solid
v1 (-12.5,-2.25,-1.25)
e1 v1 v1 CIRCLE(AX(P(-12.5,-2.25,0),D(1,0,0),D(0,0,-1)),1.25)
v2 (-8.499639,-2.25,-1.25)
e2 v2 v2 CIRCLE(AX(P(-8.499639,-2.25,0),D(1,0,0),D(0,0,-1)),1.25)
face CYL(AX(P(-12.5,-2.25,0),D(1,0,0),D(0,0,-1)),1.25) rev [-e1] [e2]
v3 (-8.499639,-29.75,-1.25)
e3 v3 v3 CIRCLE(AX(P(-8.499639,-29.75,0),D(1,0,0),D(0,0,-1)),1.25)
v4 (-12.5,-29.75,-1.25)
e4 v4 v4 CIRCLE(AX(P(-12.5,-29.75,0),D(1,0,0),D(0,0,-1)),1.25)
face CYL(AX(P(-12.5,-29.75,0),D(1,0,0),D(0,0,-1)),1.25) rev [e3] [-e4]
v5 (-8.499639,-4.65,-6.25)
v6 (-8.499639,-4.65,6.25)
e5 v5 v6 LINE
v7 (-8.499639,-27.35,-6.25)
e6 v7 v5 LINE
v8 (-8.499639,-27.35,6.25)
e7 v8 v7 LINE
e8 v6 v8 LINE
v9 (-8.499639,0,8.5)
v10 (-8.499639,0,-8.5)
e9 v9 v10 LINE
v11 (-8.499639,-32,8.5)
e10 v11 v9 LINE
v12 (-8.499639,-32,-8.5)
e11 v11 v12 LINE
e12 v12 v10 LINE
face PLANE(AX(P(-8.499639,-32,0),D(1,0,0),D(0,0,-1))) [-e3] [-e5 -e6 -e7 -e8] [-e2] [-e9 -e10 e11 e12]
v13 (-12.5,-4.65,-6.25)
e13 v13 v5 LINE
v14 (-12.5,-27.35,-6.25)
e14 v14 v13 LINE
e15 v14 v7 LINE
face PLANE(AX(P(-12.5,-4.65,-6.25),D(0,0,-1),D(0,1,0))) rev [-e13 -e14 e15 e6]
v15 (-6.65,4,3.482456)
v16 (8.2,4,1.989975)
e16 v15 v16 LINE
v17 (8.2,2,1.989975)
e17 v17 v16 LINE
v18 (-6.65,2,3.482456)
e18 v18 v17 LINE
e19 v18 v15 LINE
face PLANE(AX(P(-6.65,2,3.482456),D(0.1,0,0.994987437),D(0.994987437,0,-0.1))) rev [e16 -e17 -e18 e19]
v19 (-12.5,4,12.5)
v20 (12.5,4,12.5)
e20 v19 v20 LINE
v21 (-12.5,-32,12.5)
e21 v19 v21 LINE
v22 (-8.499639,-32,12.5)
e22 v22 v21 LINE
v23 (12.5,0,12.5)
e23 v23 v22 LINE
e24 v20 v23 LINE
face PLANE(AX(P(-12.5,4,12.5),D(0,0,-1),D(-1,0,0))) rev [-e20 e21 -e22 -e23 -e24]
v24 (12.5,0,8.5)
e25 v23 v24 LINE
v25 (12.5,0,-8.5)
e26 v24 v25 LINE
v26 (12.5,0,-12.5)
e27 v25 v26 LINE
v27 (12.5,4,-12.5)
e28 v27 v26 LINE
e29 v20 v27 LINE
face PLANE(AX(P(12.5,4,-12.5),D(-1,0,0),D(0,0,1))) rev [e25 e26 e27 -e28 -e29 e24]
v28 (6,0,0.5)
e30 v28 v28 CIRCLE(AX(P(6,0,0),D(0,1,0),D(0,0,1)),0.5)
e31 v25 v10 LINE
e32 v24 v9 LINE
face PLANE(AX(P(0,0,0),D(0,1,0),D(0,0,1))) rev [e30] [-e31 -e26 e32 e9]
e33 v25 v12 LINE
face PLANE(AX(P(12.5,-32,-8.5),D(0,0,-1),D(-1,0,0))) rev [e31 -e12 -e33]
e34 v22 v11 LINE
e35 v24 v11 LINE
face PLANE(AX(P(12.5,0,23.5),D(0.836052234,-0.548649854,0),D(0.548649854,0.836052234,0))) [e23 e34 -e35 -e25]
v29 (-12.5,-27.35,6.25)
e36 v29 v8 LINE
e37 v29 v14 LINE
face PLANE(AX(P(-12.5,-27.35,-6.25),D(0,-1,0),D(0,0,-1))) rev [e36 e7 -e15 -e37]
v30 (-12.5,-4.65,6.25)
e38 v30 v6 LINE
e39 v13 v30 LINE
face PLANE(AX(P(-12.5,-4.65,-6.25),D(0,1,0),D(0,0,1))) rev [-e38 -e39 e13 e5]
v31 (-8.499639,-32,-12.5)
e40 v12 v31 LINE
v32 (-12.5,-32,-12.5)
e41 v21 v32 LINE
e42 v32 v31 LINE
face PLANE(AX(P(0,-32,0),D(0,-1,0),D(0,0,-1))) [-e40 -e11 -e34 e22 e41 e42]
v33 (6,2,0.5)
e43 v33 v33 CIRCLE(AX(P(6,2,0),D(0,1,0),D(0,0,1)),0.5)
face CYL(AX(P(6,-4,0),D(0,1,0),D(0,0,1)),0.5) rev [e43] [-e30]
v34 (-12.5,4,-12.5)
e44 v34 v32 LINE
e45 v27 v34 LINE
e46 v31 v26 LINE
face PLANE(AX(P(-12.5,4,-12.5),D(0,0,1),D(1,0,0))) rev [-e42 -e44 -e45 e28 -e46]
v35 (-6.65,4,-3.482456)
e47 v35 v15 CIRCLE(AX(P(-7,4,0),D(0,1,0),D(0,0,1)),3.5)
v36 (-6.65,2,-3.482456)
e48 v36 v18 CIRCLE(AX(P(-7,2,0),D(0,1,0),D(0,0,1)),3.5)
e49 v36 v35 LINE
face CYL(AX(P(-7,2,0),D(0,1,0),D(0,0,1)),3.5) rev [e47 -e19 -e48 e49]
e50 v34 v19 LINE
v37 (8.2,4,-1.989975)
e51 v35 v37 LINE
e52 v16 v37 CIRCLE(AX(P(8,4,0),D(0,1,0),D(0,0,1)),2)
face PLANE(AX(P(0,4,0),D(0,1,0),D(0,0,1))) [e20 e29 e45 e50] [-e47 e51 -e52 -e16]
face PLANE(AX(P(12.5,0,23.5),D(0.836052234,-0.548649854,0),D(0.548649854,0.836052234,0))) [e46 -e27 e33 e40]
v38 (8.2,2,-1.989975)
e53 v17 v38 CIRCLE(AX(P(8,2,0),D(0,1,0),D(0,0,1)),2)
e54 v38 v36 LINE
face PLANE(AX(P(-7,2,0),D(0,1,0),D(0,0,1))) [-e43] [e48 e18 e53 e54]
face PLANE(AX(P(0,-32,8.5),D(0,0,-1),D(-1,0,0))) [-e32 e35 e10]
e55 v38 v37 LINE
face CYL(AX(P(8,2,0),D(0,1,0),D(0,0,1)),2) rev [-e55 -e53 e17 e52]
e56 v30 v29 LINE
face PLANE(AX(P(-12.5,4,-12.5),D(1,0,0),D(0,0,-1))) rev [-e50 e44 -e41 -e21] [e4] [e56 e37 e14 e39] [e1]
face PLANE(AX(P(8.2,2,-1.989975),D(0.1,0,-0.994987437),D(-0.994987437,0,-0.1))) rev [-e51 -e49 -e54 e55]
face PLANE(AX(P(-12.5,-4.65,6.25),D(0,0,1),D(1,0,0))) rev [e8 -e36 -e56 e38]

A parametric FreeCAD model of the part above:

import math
import FreeCAD as App
import Part
import Sketcher

V = App.Vector


def add_polygon(sketch, points):
    """Adds a closed chain of lines whose ends are joined by coincident constraints."""
    first, n = sketch.GeometryCount, len(points)
    for a, b in zip(points, points[1:] + points[:1]):
        sketch.addGeometry(Part.LineSegment(App.Vector(*a, 0), App.Vector(*b, 0)), False)
    for i in range(n):
        sketch.addConstraint(Sketcher.Constraint("Coincident", first + i, 2, first + (i + 1) % n, 1))

doc = App.newDocument("Part")
body = doc.addObject("PartDesign::Body", "Body")

sketch1 = body.newObject("Sketcher::SketchObject", "Sketch")
sketch1.AttachmentSupport = (doc.getObject("XZ_Plane"), [""])
sketch1.MapMode = "FlatFace"
add_polygon(sketch1, [(-12, -12), (-12, 12), (12, 12), (12, -12)])
sketch1.addConstraint(Sketcher.Constraint("Vertical", 0))
sketch1.addConstraint(Sketcher.Constraint("Horizontal", 1))
sketch1.addConstraint(Sketcher.Constraint("Vertical", 2))
sketch1.addConstraint(Sketcher.Constraint("Horizontal", 3))
sketch1.addConstraint(Sketcher.Constraint("Symmetric", 0, 2, 2, 2, -1, 1))
sketch1.addConstraint(Sketcher.Constraint("Equal", 3, 0))
sketch1.addConstraint(Sketcher.Constraint("DistanceX", 1, 1, 1, 2, 25.0))
pad1 = body.newObject("PartDesign::Pad", "Pad")
pad1.Profile = sketch1
pad1.Length = 4
pad1.Reversed = True

sketch2 = body.newObject("Sketcher::SketchObject", "Sketch001")
sketch2.AttachmentSupport = (doc.getObject("XZ_Plane"), [""])
sketch2.MapMode = "FlatFace"
sketch2.AttachmentOffset = App.Placement(V(0, 0, -4), App.Rotation())
sketch2.addGeometry(Part.LineSegment(V(-6.7, 3.5, 0), V(8.2, 2, 0)), False)
sketch2.addGeometry(Part.ArcOfCircle(Part.Circle(V(8, 0, 0), V(0, 0, 1), 2), math.radians(0), math.radians(84)), False)
sketch2.addGeometry(Part.ArcOfCircle(Part.Circle(V(8, 0, 0), V(0, 0, 1), 2), math.radians(-84), math.radians(0)), False)
sketch2.addGeometry(Part.LineSegment(V(8.2, -2, 0), V(-6.7, -3.5, 0)), False)
sketch2.addGeometry(Part.ArcOfCircle(Part.Circle(V(-7, 0, 0), V(0, 0, 1), 3.5), math.radians(84), math.radians(276)), False)
sketch2.addConstraint(Sketcher.Constraint("Tangent", 0, 2, 1, 2))
sketch2.addConstraint(Sketcher.Constraint("Tangent", 1, 1, 2, 2))
sketch2.addConstraint(Sketcher.Constraint("Tangent", 2, 1, 3, 1))
sketch2.addConstraint(Sketcher.Constraint("Tangent", 3, 2, 4, 2))
sketch2.addConstraint(Sketcher.Constraint("Tangent", 4, 1, 0, 1))
sketch2.addConstraint(Sketcher.Constraint("Equal", 1, 2))
sketch2.addConstraint(Sketcher.Constraint("Symmetric", 0, 2, 2, 1, -1))
sketch2.addConstraint(Sketcher.Constraint("PointOnObject", 1, 1, -1))
sketch2.addConstraint(Sketcher.Constraint("Radius", 1, 2.0))
sketch2.addConstraint(Sketcher.Constraint("Radius", 4, 3.5))
sketch2.addConstraint(Sketcher.Constraint("DistanceX", -1, 1, 1, 3, 8.0))
sketch2.addConstraint(Sketcher.Constraint("DistanceX", 4, 3, -1, 1, 7.0))
pad2 = body.newObject("PartDesign::Pad", "Pad001")
pad2.Profile = sketch2
pad2.Length = 4
pad2.Reversed = True

sketch3 = body.newObject("Sketcher::SketchObject", "Sketch002")
sketch3.AttachmentSupport = (doc.getObject("XZ_Plane"), [""])
sketch3.MapMode = "FlatFace"
sketch3.AttachmentOffset = App.Placement(V(0, 0, -2), App.Rotation())
sketch3.addGeometry(Part.LineSegment(V(-6.7, 3.5, 0), V(8.2, 2, 0)), False)
sketch3.addGeometry(Part.ArcOfCircle(Part.Circle(V(8, 0, 0), V(0, 0, 1), 2), math.radians(-84), math.radians(84)), False)
sketch3.addGeometry(Part.LineSegment(V(8.2, -2, 0), V(-6.7, -3.5, 0)), False)
sketch3.addGeometry(Part.ArcOfCircle(Part.Circle(V(-7, 0, 0), V(0, 0, 1), 3.5), math.radians(84), math.radians(276)), False)
sketch3.addConstraint(Sketcher.Constraint("Tangent", 0, 2, 1, 2))
sketch3.addConstraint(Sketcher.Constraint("Tangent", 1, 1, 2, 1))
sketch3.addConstraint(Sketcher.Constraint("Tangent", 2, 2, 3, 2))
sketch3.addConstraint(Sketcher.Constraint("Tangent", 3, 1, 0, 1))
sketch3.addConstraint(Sketcher.Constraint("Symmetric", 0, 2, 1, 1, -1))
sketch3.addConstraint(Sketcher.Constraint("Radius", 1, 2.0))
sketch3.addConstraint(Sketcher.Constraint("Radius", 3, 3.5))
sketch3.addConstraint(Sketcher.Constraint("DistanceX", -1, 1, 1, 3, 8.0))
sketch3.addConstraint(Sketcher.Constraint("DistanceX", 3, 3, -1, 1, 7.0))
pocket1 = body.newObject("PartDesign::Pocket", "Pocket")
pocket1.Profile = sketch3
pocket1.Length = 6

sketch4 = body.newObject("Sketcher::SketchObject", "Sketch003")
sketch4.AttachmentSupport = (doc.getObject("XZ_Plane"), [""])
sketch4.MapMode = "FlatFace"
sketch4.AttachmentOffset = App.Placement(V(0, 0, -2), App.Rotation())
sketch4.addGeometry(Part.Circle(V(6, 0, 0), V(0, 0, 1), 0.5), False)
sketch4.addConstraint(Sketcher.Constraint("PointOnObject", 0, 3, -1))
sketch4.addConstraint(Sketcher.Constraint("Diameter", 0, 1.0))
sketch4.addConstraint(Sketcher.Constraint("DistanceX", -1, 1, 0, 3, 6.0))
pocket2 = body.newObject("PartDesign::Pocket", "Pocket001")
pocket2.Profile = sketch4
pocket2.Length = 6
pocket2.Reversed = True

sketch5 = body.newObject("Sketcher::SketchObject", "Sketch004")
sketch5.AttachmentSupport = (doc.getObject("XZ_Plane"), [""])
sketch5.MapMode = "FlatFace"
add_polygon(sketch5, [(-8.5, 8.5), (12.5, 8.5), (12.5, 12.5), (-12.5, 12.5), (-12.5, -12.5), (12.5, -12.5), (12.5, -8.5), (-8.5, -8.5)])
sketch5.addConstraint(Sketcher.Constraint("Horizontal", 0))
sketch5.addConstraint(Sketcher.Constraint("Vertical", 1))
sketch5.addConstraint(Sketcher.Constraint("Horizontal", 2))
sketch5.addConstraint(Sketcher.Constraint("Vertical", 3))
sketch5.addConstraint(Sketcher.Constraint("Horizontal", 4))
sketch5.addConstraint(Sketcher.Constraint("Vertical", 5))
sketch5.addConstraint(Sketcher.Constraint("Horizontal", 6))
sketch5.addConstraint(Sketcher.Constraint("Vertical", 7))
sketch5.addConstraint(Sketcher.Constraint("Symmetric", 1, 2, 3, 2, -1, 1))
sketch5.addConstraint(Sketcher.Constraint("Symmetric", 0, 2, 5, 2, -1))
sketch5.addConstraint(Sketcher.Constraint("Equal", 4, 3))
sketch5.addConstraint(Sketcher.Constraint("DistanceX", 2, 2, 2, 1, 25.0))
sketch5.addConstraint(Sketcher.Constraint("DistanceY", 1, 1, 1, 2, 4.0))
sketch5.addConstraint(Sketcher.Constraint("DistanceX", 0, 1, 0, 2, 20.999639))
pad3 = body.newObject("PartDesign::Pad", "Pad002")
pad3.Profile = sketch5
pad3.Length = 32

sketch6 = body.newObject("Sketcher::SketchObject", "Sketch005")
sketch6.AttachmentSupport = (doc.getObject("XY_Plane"), [""])
sketch6.MapMode = "FlatFace"
sketch6.AttachmentOffset = App.Placement(V(0, 0, -8.5), App.Rotation())
add_polygon(sketch6, [(12, 0), (-8, -32), (12, -32)])
sketch6.addConstraint(Sketcher.Constraint("Horizontal", 1))
sketch6.addConstraint(Sketcher.Constraint("Vertical", 2))
sketch6.addConstraint(Sketcher.Constraint("PointOnObject", 2, 2, -1))
sketch6.addConstraint(Sketcher.Constraint("DistanceY", 2, 1, 2, 2, 32.0))
sketch6.addConstraint(Sketcher.Constraint("DistanceX", -1, 1, 1, 2, 12.5))
sketch6.addConstraint(Sketcher.Constraint("DistanceX", 1, 1, 1, 2, 20.999639))
pocket3 = body.newObject("PartDesign::Pocket", "Pocket002")
pocket3.Profile = sketch6
pocket3.Type = "ThroughAll"
pocket3.Midplane = True

sketch7 = body.newObject("Sketcher::SketchObject", "Sketch006")
sketch7.AttachmentSupport = (doc.getObject("YZ_Plane"), [""])
sketch7.MapMode = "FlatFace"
sketch7.AttachmentOffset = App.Placement(V(0, 0, -8.499639), App.Rotation())
sketch7.addGeometry(Part.Circle(V(-29.8, 0, 0), V(0, 0, 1), 1.2), False)
sketch7.addGeometry(Part.Circle(V(-2.2, 0, 0), V(0, 0, 1), 1.2), False)
add_polygon(sketch7, [(-4.7, 6.2), (-27.4, 6.2), (-27.4, -6.2), (-4.7, -6.2)])
sketch7.addConstraint(Sketcher.Constraint("Horizontal", 2))
sketch7.addConstraint(Sketcher.Constraint("Vertical", 3))
sketch7.addConstraint(Sketcher.Constraint("Horizontal", 4))
sketch7.addConstraint(Sketcher.Constraint("Vertical", 5))
sketch7.addConstraint(Sketcher.Constraint("Equal", 0, 1))
sketch7.addConstraint(Sketcher.Constraint("PointOnObject", 0, 3, -1))
sketch7.addConstraint(Sketcher.Constraint("PointOnObject", 1, 3, -1))
sketch7.addConstraint(Sketcher.Constraint("Diameter", 0, 2.5))
sketch7.addConstraint(Sketcher.Constraint("DistanceX", 2, 2, 2, 1, 22.7))
sketch7.addConstraint(Sketcher.Constraint("DistanceY", 3, 2, 3, 1, 12.5))
sketch7.addConstraint(Sketcher.Constraint("DistanceX", 0, 3, 1, 3, 27.5))
sketch7.addConstraint(Sketcher.Constraint("DistanceX", 0, 3, 2, 2, 2.4))
sketch7.addConstraint(Sketcher.Constraint("DistanceX", 0, 3, -1, 1, 29.75))
sketch7.addConstraint(Sketcher.Constraint("DistanceY", -1, 1, 2, 2, 6.25))
pocket4 = body.newObject("PartDesign::Pocket", "Pocket003")
pocket4.Profile = sketch7
pocket4.Type = "ThroughAll"

doc.recompute()
